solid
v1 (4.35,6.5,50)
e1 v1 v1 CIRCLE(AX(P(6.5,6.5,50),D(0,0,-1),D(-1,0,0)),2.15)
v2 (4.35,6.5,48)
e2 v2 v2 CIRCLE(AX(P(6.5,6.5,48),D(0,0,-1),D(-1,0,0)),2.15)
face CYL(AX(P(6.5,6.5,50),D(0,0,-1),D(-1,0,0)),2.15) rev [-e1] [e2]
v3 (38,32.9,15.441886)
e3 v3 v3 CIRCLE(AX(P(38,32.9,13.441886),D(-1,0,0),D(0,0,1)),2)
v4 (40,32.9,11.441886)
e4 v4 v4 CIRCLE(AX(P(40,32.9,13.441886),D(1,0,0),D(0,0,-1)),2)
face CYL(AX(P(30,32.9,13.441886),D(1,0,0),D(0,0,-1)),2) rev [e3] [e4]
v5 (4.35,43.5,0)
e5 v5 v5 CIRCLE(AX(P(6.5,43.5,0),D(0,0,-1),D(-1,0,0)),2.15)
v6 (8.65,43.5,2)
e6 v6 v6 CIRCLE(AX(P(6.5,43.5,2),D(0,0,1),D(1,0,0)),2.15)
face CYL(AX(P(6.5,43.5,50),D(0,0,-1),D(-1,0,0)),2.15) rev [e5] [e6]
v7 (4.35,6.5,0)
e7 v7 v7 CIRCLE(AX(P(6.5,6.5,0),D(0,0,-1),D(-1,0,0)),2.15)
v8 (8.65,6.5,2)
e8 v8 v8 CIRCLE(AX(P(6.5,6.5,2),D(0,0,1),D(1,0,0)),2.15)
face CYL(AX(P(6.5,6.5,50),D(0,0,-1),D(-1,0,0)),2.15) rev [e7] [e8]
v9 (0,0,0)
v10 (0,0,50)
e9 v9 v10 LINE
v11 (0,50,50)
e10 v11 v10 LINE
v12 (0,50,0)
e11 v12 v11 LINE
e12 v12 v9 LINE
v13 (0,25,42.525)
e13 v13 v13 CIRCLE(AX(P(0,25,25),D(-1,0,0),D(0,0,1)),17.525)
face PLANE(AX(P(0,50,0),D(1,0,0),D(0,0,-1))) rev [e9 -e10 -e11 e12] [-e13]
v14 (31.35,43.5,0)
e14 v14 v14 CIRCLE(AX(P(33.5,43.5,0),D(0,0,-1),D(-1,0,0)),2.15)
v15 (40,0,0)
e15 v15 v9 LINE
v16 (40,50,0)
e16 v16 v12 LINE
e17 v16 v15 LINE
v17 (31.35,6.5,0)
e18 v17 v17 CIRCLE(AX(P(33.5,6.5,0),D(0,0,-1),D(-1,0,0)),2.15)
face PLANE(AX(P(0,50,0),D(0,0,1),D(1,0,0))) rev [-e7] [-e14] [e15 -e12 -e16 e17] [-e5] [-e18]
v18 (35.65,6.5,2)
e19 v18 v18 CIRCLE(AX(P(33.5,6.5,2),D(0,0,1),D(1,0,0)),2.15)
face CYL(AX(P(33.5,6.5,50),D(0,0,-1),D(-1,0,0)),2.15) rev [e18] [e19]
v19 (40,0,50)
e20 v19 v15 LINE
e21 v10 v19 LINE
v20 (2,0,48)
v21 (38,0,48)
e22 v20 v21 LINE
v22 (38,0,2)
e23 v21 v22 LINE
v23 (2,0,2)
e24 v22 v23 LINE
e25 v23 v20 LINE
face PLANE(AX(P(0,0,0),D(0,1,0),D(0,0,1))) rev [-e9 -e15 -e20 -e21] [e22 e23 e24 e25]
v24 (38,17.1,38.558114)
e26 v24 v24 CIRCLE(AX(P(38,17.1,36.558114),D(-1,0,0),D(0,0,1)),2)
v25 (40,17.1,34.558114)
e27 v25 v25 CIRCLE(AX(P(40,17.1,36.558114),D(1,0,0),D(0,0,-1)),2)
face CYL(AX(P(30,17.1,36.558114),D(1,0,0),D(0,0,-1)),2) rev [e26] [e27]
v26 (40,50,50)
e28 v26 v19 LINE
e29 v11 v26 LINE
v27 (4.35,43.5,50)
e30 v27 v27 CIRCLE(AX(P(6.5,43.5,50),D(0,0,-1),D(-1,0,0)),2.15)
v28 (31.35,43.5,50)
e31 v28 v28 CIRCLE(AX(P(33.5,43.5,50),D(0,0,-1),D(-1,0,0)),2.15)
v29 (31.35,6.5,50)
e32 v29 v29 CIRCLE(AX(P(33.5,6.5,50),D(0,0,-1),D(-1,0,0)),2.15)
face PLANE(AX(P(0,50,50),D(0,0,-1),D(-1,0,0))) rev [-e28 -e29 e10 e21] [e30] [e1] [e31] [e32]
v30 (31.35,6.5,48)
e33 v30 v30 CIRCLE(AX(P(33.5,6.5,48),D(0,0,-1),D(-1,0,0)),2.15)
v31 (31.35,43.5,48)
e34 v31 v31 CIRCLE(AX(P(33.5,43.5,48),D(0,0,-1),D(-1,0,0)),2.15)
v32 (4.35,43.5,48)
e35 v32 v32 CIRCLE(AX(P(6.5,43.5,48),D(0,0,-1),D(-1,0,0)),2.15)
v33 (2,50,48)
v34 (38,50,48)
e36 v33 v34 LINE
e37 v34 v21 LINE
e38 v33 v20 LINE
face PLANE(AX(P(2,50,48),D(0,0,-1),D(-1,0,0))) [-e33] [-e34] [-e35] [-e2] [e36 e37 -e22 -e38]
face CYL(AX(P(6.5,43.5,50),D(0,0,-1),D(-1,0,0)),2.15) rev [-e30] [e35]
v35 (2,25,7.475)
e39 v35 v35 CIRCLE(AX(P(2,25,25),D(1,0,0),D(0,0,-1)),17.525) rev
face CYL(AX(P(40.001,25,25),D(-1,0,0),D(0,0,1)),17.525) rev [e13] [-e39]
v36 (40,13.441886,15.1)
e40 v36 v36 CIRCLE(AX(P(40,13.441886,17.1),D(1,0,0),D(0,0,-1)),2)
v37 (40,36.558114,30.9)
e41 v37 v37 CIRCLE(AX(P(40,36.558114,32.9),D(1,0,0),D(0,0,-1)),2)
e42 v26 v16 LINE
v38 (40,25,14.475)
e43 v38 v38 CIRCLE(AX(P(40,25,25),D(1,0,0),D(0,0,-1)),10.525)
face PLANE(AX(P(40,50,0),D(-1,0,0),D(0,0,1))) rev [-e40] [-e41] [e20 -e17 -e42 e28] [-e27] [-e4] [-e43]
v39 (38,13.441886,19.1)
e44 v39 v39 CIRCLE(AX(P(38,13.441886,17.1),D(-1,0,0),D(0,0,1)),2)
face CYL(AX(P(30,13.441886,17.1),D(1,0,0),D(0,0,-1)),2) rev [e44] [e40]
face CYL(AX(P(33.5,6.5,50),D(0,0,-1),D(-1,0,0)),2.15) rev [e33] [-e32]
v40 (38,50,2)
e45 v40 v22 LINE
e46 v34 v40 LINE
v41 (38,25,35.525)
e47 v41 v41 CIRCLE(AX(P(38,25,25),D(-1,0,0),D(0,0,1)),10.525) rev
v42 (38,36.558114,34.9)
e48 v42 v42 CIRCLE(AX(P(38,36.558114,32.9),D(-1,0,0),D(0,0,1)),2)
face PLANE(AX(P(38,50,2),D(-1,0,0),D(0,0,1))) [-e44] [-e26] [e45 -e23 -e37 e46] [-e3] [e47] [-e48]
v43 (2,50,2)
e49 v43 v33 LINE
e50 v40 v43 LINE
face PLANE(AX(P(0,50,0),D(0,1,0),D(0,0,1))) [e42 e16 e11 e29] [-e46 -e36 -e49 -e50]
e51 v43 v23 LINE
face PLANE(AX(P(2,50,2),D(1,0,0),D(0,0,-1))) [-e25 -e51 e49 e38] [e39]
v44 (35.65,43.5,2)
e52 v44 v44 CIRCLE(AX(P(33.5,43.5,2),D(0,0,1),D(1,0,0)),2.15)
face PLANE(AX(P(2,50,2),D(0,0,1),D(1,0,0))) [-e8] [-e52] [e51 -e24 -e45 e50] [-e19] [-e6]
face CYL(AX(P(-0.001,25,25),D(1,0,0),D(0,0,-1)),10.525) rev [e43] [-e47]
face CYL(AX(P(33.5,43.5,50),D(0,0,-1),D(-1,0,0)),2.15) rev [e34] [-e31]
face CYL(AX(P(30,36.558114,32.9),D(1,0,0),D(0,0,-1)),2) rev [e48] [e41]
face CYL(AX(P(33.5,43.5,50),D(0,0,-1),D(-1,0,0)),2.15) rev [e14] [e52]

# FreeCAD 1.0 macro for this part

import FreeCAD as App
import Part
import Sketcher

V = App.Vector

doc = App.newDocument("Part")
params = doc.addObject("Spreadsheet::Sheet", "Params")
for row, (alias, value) in enumerate([
    ("sketch1_width", "40 mm"),
    ("sketch1_width2", "36 mm"),
    ("sketch1_height", "50 mm"),
    ("sketch1_height2", "46 mm"),
    ("pad1_length", "50 mm"),
    ("sketch2_diameter", "4.3 mm"),
    ("sketch3_diameter", "35.05 mm"),
    ("sketch4_diameter", "21.05 mm"),
    ("sketch5_diameter", "4 mm"),
    ("pocket4_length", "10 mm"),
], start=1):
    params.set(f"A{row}", alias)
    params.set(f"B{row}", "=" + value)
    params.setAlias(f"B{row}", alias)

body = doc.addObject("PartDesign::Body", "Body")

sketch1 = body.newObject("Sketcher::SketchObject", "Sketch")
sketch1.AttachmentSupport = (doc.getObject("XZ_Plane"), [""])
sketch1.MapMode = "FlatFace"
sketch1.addGeometry([
    Part.LineSegment(V(0, 0, 0), V(0, 50, 0)),
    Part.LineSegment(V(0, 50, 0), V(40, 50, 0)),
    Part.LineSegment(V(40, 50, 0), V(40, 0, 0)),
    Part.LineSegment(V(40, 0, 0), V(0, 0, 0)),
    Part.LineSegment(V(38, 48, 0), V(2, 48, 0)),
    Part.LineSegment(V(2, 48, 0), V(2, 2, 0)),
    Part.LineSegment(V(2, 2, 0), V(38, 2, 0)),
    Part.LineSegment(V(38, 2, 0), V(38, 48, 0)),
], False)
sketch1.addConstraint([
    Sketcher.Constraint("Coincident", 0, 2, 1, 1),
    Sketcher.Constraint("Coincident", 1, 2, 2, 1),
    Sketcher.Constraint("Coincident", 2, 2, 3, 1),
    Sketcher.Constraint("Coincident", 3, 2, 0, 1),
    Sketcher.Constraint("Coincident", 4, 2, 5, 1),
    Sketcher.Constraint("Coincident", 5, 2, 6, 1),
    Sketcher.Constraint("Coincident", 6, 2, 7, 1),
    Sketcher.Constraint("Coincident", 7, 2, 4, 1),
    Sketcher.Constraint("Vertical", 0),
    Sketcher.Constraint("Horizontal", 1),
    Sketcher.Constraint("Vertical", 2),
    Sketcher.Constraint("Horizontal", 3),
    Sketcher.Constraint("Horizontal", 4),
    Sketcher.Constraint("Vertical", 5),
    Sketcher.Constraint("Horizontal", 6),
    Sketcher.Constraint("Vertical", 7),
    Sketcher.Constraint("Coincident", 3, 2, -1, 1),
    Sketcher.Constraint("DistanceX", 1, 1, 1, 2, 40.0),
    Sketcher.Constraint("DistanceX", 4, 2, 4, 1, 36.0),
    Sketcher.Constraint("DistanceY", 0, 1, 0, 2, 50.0),
    Sketcher.Constraint("DistanceY", 5, 2, 5, 1, 46.0),
    Sketcher.Constraint("DistanceX", -1, 1, 4, 2, 2.0),
    Sketcher.Constraint("DistanceY", -1, 1, 4, 2, 48.0),
])
sketch1.setExpression("Constraints[17]", "Params.sketch1_width")
sketch1.setExpression("Constraints[18]", "Params.sketch1_width2")
sketch1.setExpression("Constraints[19]", "Params.sketch1_height")
sketch1.setExpression("Constraints[20]", "Params.sketch1_height2")
pad1 = body.newObject("PartDesign::Pad", "Pad")
pad1.Profile = sketch1
pad1.setExpression("Length", "Params.pad1_length")
pad1.Reversed = True

sketch2 = body.newObject("Sketcher::SketchObject", "Sketch001")
sketch2.AttachmentSupport = (doc.getObject("XY_Plane"), [""])
sketch2.MapMode = "FlatFace"
sketch2.addGeometry([
    Part.Circle(V(6.5, 6.5, 0), V(0, 0, 1), 2.1),
    Part.Circle(V(33.5, 6.5, 0), V(0, 0, 1), 2.1),
    Part.Circle(V(33.5, 43.5, 0), V(0, 0, 1), 2.1),
    Part.Circle(V(6.5, 43.5, 0), V(0, 0, 1), 2.1),
], False)
sketch2.addConstraint([
    Sketcher.Constraint("Equal", 0, 1),
    Sketcher.Constraint("Equal", 1, 2),
    Sketcher.Constraint("Equal", 2, 3),
    Sketcher.Constraint("Horizontal", 0, 3, 1, 3),
    Sketcher.Constraint("Horizontal", 2, 3, 3, 3),
    Sketcher.Constraint("Vertical", 1, 3, 2, 3),
    Sketcher.Constraint("Vertical", 0, 3, 3, 3),
    Sketcher.Constraint("Diameter", 0, 4.3),
    Sketcher.Constraint("DistanceX", 0, 3, 1, 3, 27.0),
    Sketcher.Constraint("DistanceY", 1, 3, 2, 3, 37.0),
    Sketcher.Constraint("DistanceX", -1, 1, 0, 3, 6.5),
    Sketcher.Constraint("DistanceY", -1, 1, 0, 3, 6.5),
])
sketch2.setExpression("Constraints[7]", "Params.sketch2_diameter")
pocket1 = body.newObject("PartDesign::Pocket", "Pocket")
pocket1.Profile = sketch2
pocket1.Type = "ThroughAll"
pocket1.Reversed = True

sketch3 = body.newObject("Sketcher::SketchObject", "Sketch002")
sketch3.AttachmentSupport = (doc.getObject("YZ_Plane"), [""])
sketch3.MapMode = "FlatFace"
sketch3.addGeometry(Part.Circle(V(25, 25, 0), V(0, 0, 1), 18), False)
sketch3.addConstraint([
    Sketcher.Constraint("Diameter", 0, 35.05),
    Sketcher.Constraint("DistanceX", -1, 1, 0, 3, 25.0),
    Sketcher.Constraint("DistanceY", -1, 1, 0, 3, 25.0),
])
sketch3.setExpression("Constraints[0]", "Params.sketch3_diameter")
pocket2 = body.newObject("PartDesign::Pocket", "Pocket001")
pocket2.Profile = sketch3
pocket2.Type = "UpToFirst"
pocket2.Reversed = True

sketch4 = body.newObject("Sketcher::SketchObject", "Sketch003")
sketch4.AttachmentSupport = (doc.getObject("YZ_Plane"), [""])
sketch4.MapMode = "FlatFace"
sketch4.AttachmentOffset = App.Placement(V(0, 0, 40), App.Rotation())
sketch4.addGeometry(Part.Circle(V(25, 25, 0), V(0, 0, 1), 11), False)
sketch4.addConstraint([
    Sketcher.Constraint("Diameter", 0, 21.05),
    Sketcher.Constraint("DistanceX", -1, 1, 0, 3, 25.0),
    Sketcher.Constraint("DistanceY", -1, 1, 0, 3, 25.0),
])
sketch4.setExpression("Constraints[0]", "Params.sketch4_diameter")
pocket3 = body.newObject("PartDesign::Pocket", "Pocket002")
pocket3.Profile = sketch4
pocket3.Type = "UpToFirst"

sketch5 = body.newObject("Sketcher::SketchObject", "Sketch004")
sketch5.AttachmentSupport = (doc.getObject("YZ_Plane"), [""])
sketch5.MapMode = "FlatFace"
sketch5.AttachmentOffset = App.Placement(V(0, 0, 40), App.Rotation())
sketch5.addGeometry([
    Part.Circle(V(13.4, 17.1, 0), V(0, 0, 1), 2),
    Part.Circle(V(17.1, 36.6, 0), V(0, 0, 1), 2),
    Part.Circle(V(36.6, 32.9, 0), V(0, 0, 1), 2),
    Part.Circle(V(32.9, 13.4, 0), V(0, 0, 1), 2),
], False)
sketch5.addConstraint([
    Sketcher.Constraint("Equal", 0, 1),
    Sketcher.Constraint("Equal", 1, 2),
    Sketcher.Constraint("Equal", 2, 3),
    Sketcher.Constraint("Diameter", 0, 4.0),
    Sketcher.Constraint("DistanceY", -1, 1, 0, 3, 17.1),
    Sketcher.Constraint("DistanceX", -1, 1, 1, 3, 17.1),
    Sketcher.Constraint("DistanceY", -1, 1, 2, 3, 32.9),
    Sketcher.Constraint("DistanceX", -1, 1, 3, 3, 32.9),
    Sketcher.Constraint("DistanceX", 0, 3, 2, 3, 23.116228),
    Sketcher.Constraint("DistanceY", 3, 3, 1, 3, 23.116228),
    Sketcher.Constraint("DistanceX", -1, 1, 0, 3, 13.441886),
    Sketcher.Constraint("DistanceY", -1, 1, 1, 3, 36.558114),
])
sketch5.setExpression("Constraints[3]", "Params.sketch5_diameter")
pocket4 = body.newObject("PartDesign::Pocket", "Pocket003")
pocket4.Profile = sketch5
pocket4.setExpression("Length", "Params.pocket4_length")

doc.recompute()
